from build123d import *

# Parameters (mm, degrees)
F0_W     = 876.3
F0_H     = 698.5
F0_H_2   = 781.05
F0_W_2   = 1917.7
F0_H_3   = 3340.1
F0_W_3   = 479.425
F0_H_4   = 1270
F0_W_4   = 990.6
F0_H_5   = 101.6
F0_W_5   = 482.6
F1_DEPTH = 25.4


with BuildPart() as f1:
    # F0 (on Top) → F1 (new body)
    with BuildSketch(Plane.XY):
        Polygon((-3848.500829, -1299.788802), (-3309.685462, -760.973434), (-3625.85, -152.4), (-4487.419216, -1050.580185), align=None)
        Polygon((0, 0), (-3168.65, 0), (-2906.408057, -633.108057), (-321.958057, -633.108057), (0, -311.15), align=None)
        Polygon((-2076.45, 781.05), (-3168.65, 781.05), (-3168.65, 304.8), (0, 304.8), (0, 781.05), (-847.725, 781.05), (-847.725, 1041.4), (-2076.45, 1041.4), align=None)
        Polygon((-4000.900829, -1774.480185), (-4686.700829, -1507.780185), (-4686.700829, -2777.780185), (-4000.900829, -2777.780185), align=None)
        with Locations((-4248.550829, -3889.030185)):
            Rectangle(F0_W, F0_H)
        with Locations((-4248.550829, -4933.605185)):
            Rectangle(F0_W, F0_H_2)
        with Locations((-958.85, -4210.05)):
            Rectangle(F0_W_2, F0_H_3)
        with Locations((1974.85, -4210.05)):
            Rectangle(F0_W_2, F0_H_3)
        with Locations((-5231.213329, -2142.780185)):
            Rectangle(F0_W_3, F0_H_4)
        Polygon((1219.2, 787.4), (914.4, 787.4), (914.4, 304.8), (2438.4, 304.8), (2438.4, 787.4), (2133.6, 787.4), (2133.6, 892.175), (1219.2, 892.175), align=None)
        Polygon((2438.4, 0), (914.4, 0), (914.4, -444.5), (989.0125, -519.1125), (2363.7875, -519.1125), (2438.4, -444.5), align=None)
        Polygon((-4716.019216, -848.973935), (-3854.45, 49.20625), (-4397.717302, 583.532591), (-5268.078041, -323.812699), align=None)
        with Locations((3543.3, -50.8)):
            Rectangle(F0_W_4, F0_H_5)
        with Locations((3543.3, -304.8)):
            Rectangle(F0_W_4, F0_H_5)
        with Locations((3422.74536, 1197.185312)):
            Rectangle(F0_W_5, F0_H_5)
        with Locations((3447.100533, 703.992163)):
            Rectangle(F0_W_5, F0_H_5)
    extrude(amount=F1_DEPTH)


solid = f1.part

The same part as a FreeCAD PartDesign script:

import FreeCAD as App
import Part
import Sketcher
Q = App.Units.Quantity

doc = App.newDocument("Part")
body = doc.addObject("PartDesign::Body", "Body")
body.AllowCompound = True

sketch1 = doc.addObject("Sketcher::SketchObject", "Sketch")
body.addObject(sketch1)
sketch1.AttachmentSupport = (doc.XY_Plane, [""])
sketch1.MapMode = "FlatFace"
sketch1.addGeometry(Part.LineSegment(App.Vector(-3848.500829, -1299.788802, 0), App.Vector(-3309.685462, -760.973434, 0)), False)
sketch1.addGeometry(Part.LineSegment(App.Vector(-3309.685462, -760.973434, 0), App.Vector(-3625.85, -152.4, 0)), False)
sketch1.addGeometry(Part.LineSegment(App.Vector(-3625.85, -152.4, 0), App.Vector(-4487.419216, -1050.580185, 0)), False)
sketch1.addGeometry(Part.LineSegment(App.Vector(-4487.419216, -1050.580185, 0), App.Vector(-3848.500829, -1299.788802, 0)), False)
sketch1.addGeometry(Part.LineSegment(App.Vector(0, 0, 0), App.Vector(-3168.65, 0, 0)), False)
sketch1.addGeometry(Part.LineSegment(App.Vector(-3168.65, 0, 0), App.Vector(-2906.408057, -633.108057, 0)), False)
sketch1.addGeometry(Part.LineSegment(App.Vector(-2906.408057, -633.108057, 0), App.Vector(-321.958057, -633.108057, 0)), False)
sketch1.addGeometry(Part.LineSegment(App.Vector(-321.958057, -633.108057, 0), App.Vector(0, -311.15, 0)), False)
sketch1.addGeometry(Part.LineSegment(App.Vector(0, -311.15, 0), App.Vector(0, 0, 0)), False)
sketch1.addGeometry(Part.LineSegment(App.Vector(-2076.45, 781.05, 0), App.Vector(-3168.65, 781.05, 0)), False)
sketch1.addGeometry(Part.LineSegment(App.Vector(-3168.65, 781.05, 0), App.Vector(-3168.65, 304.8, 0)), False)
sketch1.addGeometry(Part.LineSegment(App.Vector(-3168.65, 304.8, 0), App.Vector(0, 304.8, 0)), False)
sketch1.addGeometry(Part.LineSegment(App.Vector(0, 304.8, 0), App.Vector(0, 781.05, 0)), False)
sketch1.addGeometry(Part.LineSegment(App.Vector(0, 781.05, 0), App.Vector(-847.725, 781.05, 0)), False)
sketch1.addGeometry(Part.LineSegment(App.Vector(-847.725, 781.05, 0), App.Vector(-847.725, 1041.4, 0)), False)
sketch1.addGeometry(Part.LineSegment(App.Vector(-847.725, 1041.4, 0), App.Vector(-2076.45, 1041.4, 0)), False)
sketch1.addGeometry(Part.LineSegment(App.Vector(-2076.45, 1041.4, 0), App.Vector(-2076.45, 781.05, 0)), False)
sketch1.addGeometry(Part.LineSegment(App.Vector(-4000.900829, -1774.480185, 0), App.Vector(-4686.700829, -1507.780185, 0)), False)
sketch1.addGeometry(Part.LineSegment(App.Vector(-4686.700829, -1507.780185, 0), App.Vector(-4686.700829, -2777.780185, 0)), False)
sketch1.addGeometry(Part.LineSegment(App.Vector(-4686.700829, -2777.780185, 0), App.Vector(-4000.900829, -2777.780185, 0)), False)
sketch1.addGeometry(Part.LineSegment(App.Vector(-4000.900829, -2777.780185, 0), App.Vector(-4000.900829, -1774.480185, 0)), False)
sketch1.addGeometry(Part.LineSegment(App.Vector(-4686.700829, -3539.780185, 0), App.Vector(-4686.700829, -4238.280185, 0)), False)
sketch1.addGeometry(Part.LineSegment(App.Vector(-4686.700829, -4238.280185, 0), App.Vector(-3810.400829, -4238.280185, 0)), False)
sketch1.addGeometry(Part.LineSegment(App.Vector(-3810.400829, -4238.280185, 0), App.Vector(-3810.400829, -3539.780185, 0)), False)
sketch1.addGeometry(Part.LineSegment(App.Vector(-3810.400829, -3539.780185, 0), App.Vector(-4686.700829, -3539.780185, 0)), False)
sketch1.addGeometry(Part.LineSegment(App.Vector(-4686.700829, -4543.080185, 0), App.Vector(-4686.700829, -5324.130185, 0)), False)
sketch1.addGeometry(Part.LineSegment(App.Vector(-4686.700829, -5324.130185, 0), App.Vector(-3810.400829, -5324.130185, 0)), False)
sketch1.addGeometry(Part.LineSegment(App.Vector(-3810.400829, -5324.130185, 0), App.Vector(-3810.400829, -4543.080185, 0)), False)
sketch1.addGeometry(Part.LineSegment(App.Vector(-3810.400829, -4543.080185, 0), App.Vector(-4686.700829, -4543.080185, 0)), False)
sketch1.addGeometry(Part.LineSegment(App.Vector(-1917.7, -2540, 0), App.Vector(-1917.7, -5880.1, 0)), False)
sketch1.addGeometry(Part.LineSegment(App.Vector(-1917.7, -5880.1, 0), App.Vector(0, -5880.1, 0)), False)
sketch1.addGeometry(Part.LineSegment(App.Vector(0, -5880.1, 0), App.Vector(0, -2540, 0)), False)
sketch1.addGeometry(Part.LineSegment(App.Vector(0, -2540, 0), App.Vector(-1917.7, -2540, 0)), False)
sketch1.addGeometry(Part.LineSegment(App.Vector(1016, -2540, 0), App.Vector(1016, -5880.1, 0)), False)
sketch1.addGeometry(Part.LineSegment(App.Vector(1016, -5880.1, 0), App.Vector(2933.7, -5880.1, 0)), False)
sketch1.addGeometry(Part.LineSegment(App.Vector(2933.7, -5880.1, 0), App.Vector(2933.7, -2540, 0)), False)
sketch1.addGeometry(Part.LineSegment(App.Vector(2933.7, -2540, 0), App.Vector(1016, -2540, 0)), False)
sketch1.addGeometry(Part.LineSegment(App.Vector(-5470.925829, -1507.780185, 0), App.Vector(-5470.925829, -2777.780185, 0)), False)
sketch1.addGeometry(Part.LineSegment(App.Vector(-5470.925829, -2777.780185, 0), App.Vector(-4991.500829, -2777.780185, 0)), False)
sketch1.addGeometry(Part.LineSegment(App.Vector(-4991.500829, -2777.780185, 0), App.Vector(-4991.500829, -1507.780185, 0)), False)
sketch1.addGeometry(Part.LineSegment(App.Vector(-4991.500829, -1507.780185, 0), App.Vector(-5470.925829, -1507.780185, 0)), False)
sketch1.addGeometry(Part.LineSegment(App.Vector(1219.2, 787.4, 0), App.Vector(914.4, 787.4, 0)), False)
sketch1.addGeometry(Part.LineSegment(App.Vector(914.4, 787.4, 0), App.Vector(914.4, 304.8, 0)), False)
sketch1.addGeometry(Part.LineSegment(App.Vector(914.4, 304.8, 0), App.Vector(2438.4, 304.8, 0)), False)
sketch1.addGeometry(Part.LineSegment(App.Vector(2438.4, 304.8, 0), App.Vector(2438.4, 787.4, 0)), False)
sketch1.addGeometry(Part.LineSegment(App.Vector(2438.4, 787.4, 0), App.Vector(2133.6, 787.4, 0)), False)
sketch1.addGeometry(Part.LineSegment(App.Vector(2133.6, 787.4, 0), App.Vector(2133.6, 892.175, 0)), False)
sketch1.addGeometry(Part.LineSegment(App.Vector(2133.6, 892.175, 0), App.Vector(1219.2, 892.175, 0)), False)
sketch1.addGeometry(Part.LineSegment(App.Vector(1219.2, 892.175, 0), App.Vector(1219.2, 787.4, 0)), False)
sketch1.addGeometry(Part.LineSegment(App.Vector(2438.4, 0, 0), App.Vector(914.4, 0, 0)), False)
sketch1.addGeometry(Part.LineSegment(App.Vector(914.4, 0, 0), App.Vector(914.4, -444.5, 0)), False)
sketch1.addGeometry(Part.LineSegment(App.Vector(914.4, -444.5, 0), App.Vector(989.0125, -519.1125, 0)), False)
sketch1.addGeometry(Part.LineSegment(App.Vector(989.0125, -519.1125, 0), App.Vector(2363.7875, -519.1125, 0)), False)
sketch1.addGeometry(Part.LineSegment(App.Vector(2363.7875, -519.1125, 0), App.Vector(2438.4, -444.5, 0)), False)
sketch1.addGeometry(Part.LineSegment(App.Vector(2438.4, -444.5, 0), App.Vector(2438.4, 0, 0)), False)
sketch1.addGeometry(Part.LineSegment(App.Vector(-4716.019216, -848.973935, 0), App.Vector(-3854.45, 49.20625, 0)), False)
sketch1.addGeometry(Part.LineSegment(App.Vector(-3854.45, 49.20625, 0), App.Vector(-4397.717302, 583.532591, 0)), False)
sketch1.addGeometry(Part.LineSegment(App.Vector(-4397.717302, 583.532591, 0), App.Vector(-5268.078041, -323.812699, 0)), False)
sketch1.addGeometry(Part.LineSegment(App.Vector(-5268.078041, -323.812699, 0), App.Vector(-4716.019216, -848.973935, 0)), False)
sketch1.addGeometry(Part.LineSegment(App.Vector(3048, 0, 0), App.Vector(3048, -101.6, 0)), False)
sketch1.addGeometry(Part.LineSegment(App.Vector(3048, -101.6, 0), App.Vector(4038.6, -101.6, 0)), False)
sketch1.addGeometry(Part.LineSegment(App.Vector(4038.6, -101.6, 0), App.Vector(4038.6, 0, 0)), False)
sketch1.addGeometry(Part.LineSegment(App.Vector(4038.6, 0, 0), App.Vector(3048, 0, 0)), False)
sketch1.addGeometry(Part.LineSegment(App.Vector(3048, -254, 0), App.Vector(3048, -355.6, 0)), False)
sketch1.addGeometry(Part.LineSegment(App.Vector(3048, -355.6, 0), App.Vector(4038.6, -355.6, 0)), False)
sketch1.addGeometry(Part.LineSegment(App.Vector(4038.6, -355.6, 0), App.Vector(4038.6, -254, 0)), False)
sketch1.addGeometry(Part.LineSegment(App.Vector(4038.6, -254, 0), App.Vector(3048, -254, 0)), False)
sketch1.addGeometry(Part.LineSegment(App.Vector(3181.44536, 1247.985312, 0), App.Vector(3181.44536, 1146.385312, 0)), False)
sketch1.addGeometry(Part.LineSegment(App.Vector(3181.44536, 1146.385312, 0), App.Vector(3664.04536, 1146.385312, 0)), False)
sketch1.addGeometry(Part.LineSegment(App.Vector(3664.04536, 1146.385312, 0), App.Vector(3664.04536, 1247.985312, 0)), False)
sketch1.addGeometry(Part.LineSegment(App.Vector(3664.04536, 1247.985312, 0), App.Vector(3181.44536, 1247.985312, 0)), False)
sketch1.addGeometry(Part.LineSegment(App.Vector(3205.800533, 754.792163, 0), App.Vector(3205.800533, 653.192163, 0)), False)
sketch1.addGeometry(Part.LineSegment(App.Vector(3205.800533, 653.192163, 0), App.Vector(3688.400533, 653.192163, 0)), False)
sketch1.addGeometry(Part.LineSegment(App.Vector(3688.400533, 653.192163, 0), App.Vector(3688.400533, 754.792163, 0)), False)
sketch1.addGeometry(Part.LineSegment(App.Vector(3688.400533, 754.792163, 0), App.Vector(3205.800533, 754.792163, 0)), False)
sketch1.addConstraint(Sketcher.Constraint("Coincident", 0, 2, 1, 1))
sketch1.addConstraint(Sketcher.Constraint("Coincident", 1, 2, 2, 1))
sketch1.addConstraint(Sketcher.Constraint("Coincident", 2, 2, 3, 1))
sketch1.addConstraint(Sketcher.Constraint("Coincident", 3, 2, 0, 1))
sketch1.addConstraint(Sketcher.Constraint("Coincident", 4, 2, 5, 1))
sketch1.addConstraint(Sketcher.Constraint("Coincident", 5, 2, 6, 1))
sketch1.addConstraint(Sketcher.Constraint("Coincident", 6, 2, 7, 1))
sketch1.addConstraint(Sketcher.Constraint("Coincident", 7, 2, 8, 1))
sketch1.addConstraint(Sketcher.Constraint("Coincident", 8, 2, 4, 1))
sketch1.addConstraint(Sketcher.Constraint("Coincident", 9, 2, 10, 1))
sketch1.addConstraint(Sketcher.Constraint("Coincident", 10, 2, 11, 1))
sketch1.addConstraint(Sketcher.Constraint("Coincident", 11, 2, 12, 1))
sketch1.addConstraint(Sketcher.Constraint("Coincident", 12, 2, 13, 1))
sketch1.addConstraint(Sketcher.Constraint("Coincident", 13, 2, 14, 1))
sketch1.addConstraint(Sketcher.Constraint("Coincident", 14, 2, 15, 1))
sketch1.addConstraint(Sketcher.Constraint("Coincident", 15, 2, 16, 1))
sketch1.addConstraint(Sketcher.Constraint("Coincident", 16, 2, 9, 1))
sketch1.addConstraint(Sketcher.Constraint("Coincident", 17, 2, 18, 1))
sketch1.addConstraint(Sketcher.Constraint("Coincident", 18, 2, 19, 1))
sketch1.addConstraint(Sketcher.Constraint("Coincident", 19, 2, 20, 1))
sketch1.addConstraint(Sketcher.Constraint("Coincident", 20, 2, 17, 1))
sketch1.addConstraint(Sketcher.Constraint("Coincident", 21, 2, 22, 1))
sketch1.addConstraint(Sketcher.Constraint("Coincident", 22, 2, 23, 1))
sketch1.addConstraint(Sketcher.Constraint("Coincident", 23, 2, 24, 1))
sketch1.addConstraint(Sketcher.Constraint("Coincident", 24, 2, 21, 1))
sketch1.addConstraint(Sketcher.Constraint("Coincident", 25, 2, 26, 1))
sketch1.addConstraint(Sketcher.Constraint("Coincident", 26, 2, 27, 1))
sketch1.addConstraint(Sketcher.Constraint("Coincident", 27, 2, 28, 1))
sketch1.addConstraint(Sketcher.Constraint("Coincident", 28, 2, 25, 1))
sketch1.addConstraint(Sketcher.Constraint("Coincident", 29, 2, 30, 1))
sketch1.addConstraint(Sketcher.Constraint("Coincident", 30, 2, 31, 1))
sketch1.addConstraint(Sketcher.Constraint("Coincident", 31, 2, 32, 1))
sketch1.addConstraint(Sketcher.Constraint("Coincident", 32, 2, 29, 1))
sketch1.addConstraint(Sketcher.Constraint("Coincident", 33, 2, 34, 1))
sketch1.addConstraint(Sketcher.Constraint("Coincident", 34, 2, 35, 1))
sketch1.addConstraint(Sketcher.Constraint("Coincident", 35, 2, 36, 1))
sketch1.addConstraint(Sketcher.Constraint("Coincident", 36, 2, 33, 1))
sketch1.addConstraint(Sketcher.Constraint("Coincident", 37, 2, 38, 1))
sketch1.addConstraint(Sketcher.Constraint("Coincident", 38, 2, 39, 1))
sketch1.addConstraint(Sketcher.Constraint("Coincident", 39, 2, 40, 1))
sketch1.addConstraint(Sketcher.Constraint("Coincident", 40, 2, 37, 1))
sketch1.addConstraint(Sketcher.Constraint("Coincident", 41, 2, 42, 1))
sketch1.addConstraint(Sketcher.Constraint("Coincident", 42, 2, 43, 1))
sketch1.addConstraint(Sketcher.Constraint("Coincident", 43, 2, 44, 1))
sketch1.addConstraint(Sketcher.Constraint("Coincident", 44, 2, 45, 1))
sketch1.addConstraint(Sketcher.Constraint("Coincident", 45, 2, 46, 1))
sketch1.addConstraint(Sketcher.Constraint("Coincident", 46, 2, 47, 1))
sketch1.addConstraint(Sketcher.Constraint("Coincident", 47, 2, 48, 1))
sketch1.addConstraint(Sketcher.Constraint("Coincident", 48, 2, 41, 1))
sketch1.addConstraint(Sketcher.Constraint("Coincident", 49, 2, 50, 1))
sketch1.addConstraint(Sketcher.Constraint("Coincident", 50, 2, 51, 1))
sketch1.addConstraint(Sketcher.Constraint("Coincident", 51, 2, 52, 1))
sketch1.addConstraint(Sketcher.Constraint("Coincident", 52, 2, 53, 1))
sketch1.addConstraint(Sketcher.Constraint("Coincident", 53, 2, 54, 1))
sketch1.addConstraint(Sketcher.Constraint("Coincident", 54, 2, 49, 1))
sketch1.addConstraint(Sketcher.Constraint("Coincident", 55, 2, 56, 1))
sketch1.addConstraint(Sketcher.Constraint("Coincident", 56, 2, 57, 1))
sketch1.addConstraint(Sketcher.Constraint("Coincident", 57, 2, 58, 1))
sketch1.addConstraint(Sketcher.Constraint("Coincident", 58, 2, 55, 1))
sketch1.addConstraint(Sketcher.Constraint("Coincident", 59, 2, 60, 1))
sketch1.addConstraint(Sketcher.Constraint("Coincident", 60, 2, 61, 1))
sketch1.addConstraint(Sketcher.Constraint("Coincident", 61, 2, 62, 1))
sketch1.addConstraint(Sketcher.Constraint("Coincident", 62, 2, 59, 1))
sketch1.addConstraint(Sketcher.Constraint("Coincident", 63, 2, 64, 1))
sketch1.addConstraint(Sketcher.Constraint("Coincident", 64, 2, 65, 1))
sketch1.addConstraint(Sketcher.Constraint("Coincident", 65, 2, 66, 1))
sketch1.addConstraint(Sketcher.Constraint("Coincident", 66, 2, 63, 1))
sketch1.addConstraint(Sketcher.Constraint("Coincident", 67, 2, 68, 1))
sketch1.addConstraint(Sketcher.Constraint("Coincident", 68, 2, 69, 1))
sketch1.addConstraint(Sketcher.Constraint("Coincident", 69, 2, 70, 1))
sketch1.addConstraint(Sketcher.Constraint("Coincident", 70, 2, 67, 1))
sketch1.addConstraint(Sketcher.Constraint("Coincident", 71, 2, 72, 1))
sketch1.addConstraint(Sketcher.Constraint("Coincident", 72, 2, 73, 1))
sketch1.addConstraint(Sketcher.Constraint("Coincident", 73, 2, 74, 1))
sketch1.addConstraint(Sketcher.Constraint("Coincident", 74, 2, 71, 1))
sketch1.addConstraint(Sketcher.Constraint("Horizontal", 4))
sketch1.addConstraint(Sketcher.Constraint("Horizontal", 6))
sketch1.addConstraint(Sketcher.Constraint("Vertical", 8))
sketch1.addConstraint(Sketcher.Constraint("Horizontal", 9))
sketch1.addConstraint(Sketcher.Constraint("Vertical", 10))
sketch1.addConstraint(Sketcher.Constraint("Horizontal", 11))
sketch1.addConstraint(Sketcher.Constraint("Vertical", 12))
sketch1.addConstraint(Sketcher.Constraint("Horizontal", 13))
sketch1.addConstraint(Sketcher.Constraint("Vertical", 14))
sketch1.addConstraint(Sketcher.Constraint("Horizontal", 15))
sketch1.addConstraint(Sketcher.Constraint("Vertical", 16))
sketch1.addConstraint(Sketcher.Constraint("Vertical", 18))
sketch1.addConstraint(Sketcher.Constraint("Horizontal", 19))
sketch1.addConstraint(Sketcher.Constraint("Vertical", 20))
sketch1.addConstraint(Sketcher.Constraint("Vertical", 21))
sketch1.addConstraint(Sketcher.Constraint("Horizontal", 22))
sketch1.addConstraint(Sketcher.Constraint("Vertical", 23))
sketch1.addConstraint(Sketcher.Constraint("Horizontal", 24))
sketch1.addConstraint(Sketcher.Constraint("Vertical", 25))
sketch1.addConstraint(Sketcher.Constraint("Horizontal", 26))
sketch1.addConstraint(Sketcher.Constraint("Vertical", 27))
sketch1.addConstraint(Sketcher.Constraint("Horizontal", 28))
sketch1.addConstraint(Sketcher.Constraint("Vertical", 29))
sketch1.addConstraint(Sketcher.Constraint("Horizontal", 30))
sketch1.addConstraint(Sketcher.Constraint("Vertical", 31))
sketch1.addConstraint(Sketcher.Constraint("Horizontal", 32))
sketch1.addConstraint(Sketcher.Constraint("Vertical", 33))
sketch1.addConstraint(Sketcher.Constraint("Horizontal", 34))
sketch1.addConstraint(Sketcher.Constraint("Vertical", 35))
sketch1.addConstraint(Sketcher.Constraint("Horizontal", 36))
sketch1.addConstraint(Sketcher.Constraint("Vertical", 37))
sketch1.addConstraint(Sketcher.Constraint("Horizontal", 38))
sketch1.addConstraint(Sketcher.Constraint("Vertical", 39))
sketch1.addConstraint(Sketcher.Constraint("Horizontal", 40))
sketch1.addConstraint(Sketcher.Constraint("Horizontal", 41))
sketch1.addConstraint(Sketcher.Constraint("Vertical", 42))
sketch1.addConstraint(Sketcher.Constraint("Horizontal", 43))
sketch1.addConstraint(Sketcher.Constraint("Vertical", 44))
sketch1.addConstraint(Sketcher.Constraint("Horizontal", 45))
sketch1.addConstraint(Sketcher.Constraint("Vertical", 46))
sketch1.addConstraint(Sketcher.Constraint("Horizontal", 47))
sketch1.addConstraint(Sketcher.Constraint("Vertical", 48))
sketch1.addConstraint(Sketcher.Constraint("Horizontal", 49))
sketch1.addConstraint(Sketcher.Constraint("Vertical", 50))
sketch1.addConstraint(Sketcher.Constraint("Horizontal", 52))
sketch1.addConstraint(Sketcher.Constraint("Vertical", 54))
sketch1.addConstraint(Sketcher.Constraint("Vertical", 59))
sketch1.addConstraint(Sketcher.Constraint("Horizontal", 60))
sketch1.addConstraint(Sketcher.Constraint("Vertical", 61))
sketch1.addConstraint(Sketcher.Constraint("Horizontal", 62))
sketch1.addConstraint(Sketcher.Constraint("Vertical", 63))
sketch1.addConstraint(Sketcher.Constraint("Horizontal", 64))
sketch1.addConstraint(Sketcher.Constraint("Vertical", 65))
sketch1.addConstraint(Sketcher.Constraint("Horizontal", 66))
sketch1.addConstraint(Sketcher.Constraint("Vertical", 67))
sketch1.addConstraint(Sketcher.Constraint("Horizontal", 68))
sketch1.addConstraint(Sketcher.Constraint("Vertical", 69))
sketch1.addConstraint(Sketcher.Constraint("Horizontal", 70))
sketch1.addConstraint(Sketcher.Constraint("Vertical", 71))
sketch1.addConstraint(Sketcher.Constraint("Horizontal", 72))
sketch1.addConstraint(Sketcher.Constraint("Vertical", 73))
sketch1.addConstraint(Sketcher.Constraint("Horizontal", 74))
sketch1.addConstraint(Sketcher.Constraint("Coincident", 8, 2, -1, 1))
sketch1.addConstraint(Sketcher.Constraint("PointOnObject", 11, 2, -2))
sketch1.addConstraint(Sketcher.Constraint("PointOnObject", 30, 2, -2))
sketch1.addConstraint(Sketcher.Constraint("PointOnObject", 49, 2, -1))
sketch1.addConstraint(Sketcher.Constraint("PointOnObject", 61, 2, -1))
sketch1.addConstraint(Sketcher.Constraint("Parallel", 0, 7))
sketch1.addConstraint(Sketcher.Constraint("Perpendicular", 7, 51))
sketch1.addConstraint(Sketcher.Constraint("Perpendicular", 51, 53))
sketch1.addConstraint(Sketcher.Constraint("Parallel", 2, 55))
sketch1.addConstraint(Sketcher.Constraint("Parallel", 55, 57))
sketch1.addConstraint(Sketcher.Constraint("Horizontal", 9, 2, 12, 2))
sketch1.addConstraint(Sketcher.Constraint("Horizontal", 30, 2, 33, 2))
sketch1.addConstraint(Sketcher.Constraint("Horizontal", 32, 2, 35, 2))
sketch1.addConstraint(Sketcher.Constraint("Horizontal", 19, 2, 37, 2))
sketch1.addConstraint(Sketcher.Constraint("Horizontal", 17, 2, 39, 2))
sketch1.addConstraint(Sketcher.Constraint("Horizontal", 11, 2, 42, 2))
sketch1.addConstraint(Sketcher.Constraint("Horizontal", 41, 2, 44, 2))
sketch1.addConstraint(Sketcher.Constraint("Horizontal", 50, 2, 53, 2))
sketch1.addConstraint(Sketcher.Constraint("Vertical", 4, 2, 9, 2))
sketch1.addConstraint(Sketcher.Constraint("Vertical", 18, 2, 21, 2))
sketch1.addConstraint(Sketcher.Constraint("Vertical", 24, 2, 25, 2))
sketch1.addConstraint(Sketcher.Constraint("Vertical", 23, 2, 26, 2))
sketch1.addConstraint(Sketcher.Constraint("Vertical", 42, 2, 49, 2))
sketch1.addConstraint(Sketcher.Constraint("Vertical", 44, 2, 53, 2))
sketch1.addConstraint(Sketcher.Constraint("Vertical", 62, 2, 63, 2))
sketch1.addConstraint(Sketcher.Constraint("Vertical", 61, 2, 64, 2))
sketch1.addConstraint(Sketcher.Constraint("Equal", 32, 34))
sketch1.addConstraint(Sketcher.Constraint("Equal", 41, 45))
sketch1.addConstraint(Sketcher.Constraint("Equal", 70, 72))
sketch1.addConstraint(Sketcher.Constraint("Equal", 74, 42))
sketch1.addConstraint(Sketcher.Constraint("Equal", 61, 63))
sketch1.addConstraint(Sketcher.Constraint("Equal", 65, 67))
sketch1.addConstraint(Sketcher.Constraint("Equal", 69, 71))
sketch1.addConstraint(Sketcher.Constraint("Equal", 1, 3))
sketch1.addConstraint(Sketcher.Constraint("Equal", 51, 53))
sketch1.addConstraint(Sketcher.Constraint("Equal", 2, 55))
sketch1.addConstraint(Sketcher.Constraint("Equal", 0, 56))
sketch1.addConstraint(Sketcher.Constraint("DistanceX", 9, 2, 9, 1, Q("43 in")))
sketch1.addConstraint(Sketcher.Constraint("DistanceX", 19, 1, 19, 2, Q("27 in")))
sketch1.addConstraint(Sketcher.Constraint("DistanceX", 41, 2, 41, 1, Q("12 in")))
sketch1.addConstraint(Sketcher.Constraint("DistanceX", 43, 1, 43, 2, Q("60 in")))
sketch1.addConstraint(Sketcher.Constraint("DistanceX", 60, 1, 60, 2, Q("39 in")))
sketch1.addConstraint(Sketcher.Constraint("DistanceX", 68, 1, 68, 2, Q("19 in")))
sketch1.addConstraint(Sketcher.Constraint("DistanceY", 18, 2, 18, 1, Q("50 in")))
sketch1.addConstraint(Sketcher.Constraint("DistanceY", 59, 2, 59, 1, Q("4 in")))
sketch1.addConstraint(Sketcher.Constraint("Distance", 0, Q("30 in")))
sketch1.addConstraint(Sketcher.Constraint("Distance", 1, Q("27 in")))
sketch1.addConstraint(Sketcher.Constraint("Distance", 2, Q("49 in")))
sketch1.addConstraint(Sketcher.Constraint("DistanceX", 22, 1, 22, 2, Q("34.5 in")))
sketch1.addConstraint(Sketcher.Constraint("DistanceX", 30, 1, 30, 2, Q("75.5 in")))
sketch1.addConstraint(Sketcher.Constraint("DistanceY", 20, 1, 20, 2, Q("39.5 in")))
sketch1.addConstraint(Sketcher.Constraint("DistanceY", 21, 2, 21, 1, Q("27.5 in")))
sketch1.addConstraint(Sketcher.Constraint("DistanceY", 29, 2, 29, 1, Q("131.5 in")))
sketch1.addConstraint(Sketcher.Constraint("DistanceY", 50, 2, 50, 1, Q("17.5 in")))
sketch1.addConstraint(Sketcher.Constraint("DistanceY", 1, 2, -1, 1, Q("6 in")))
sketch1.addConstraint(Sketcher.Constraint("DistanceY", -1, 1, 10, 2, Q("12 in")))
sketch1.addConstraint(Sketcher.Constraint("DistanceY", -1, 1, 14, 2, Q("41 in")))
sketch1.addConstraint(Sketcher.Constraint("DistanceY", 31, 2, -1, 1, Q("100 in")))
sketch1.addConstraint(Sketcher.Constraint("DistanceX", -1, 1, 33, 2, Q("40 in")))
sketch1.addConstraint(Sketcher.Constraint("DistanceX", -1, 1, 41, 2, Q("36 in")))
sketch1.addConstraint(Sketcher.Constraint("DistanceX", -1, 1, 59, 2, Q("120 in")))
sketch1.addConstraint(Sketcher.Constraint("DistanceY", 63, 2, -1, 1, Q("14 in")))
sketch1.addConstraint(Sketcher.Constraint("Distance", 57, Q("49.5 in")))
sketch1.addConstraint(Sketcher.Constraint("DistanceX", 4, 2, 4, 1, Q("124.75 in")))
sketch1.addConstraint(Sketcher.Constraint("DistanceX", 6, 1, 6, 2, Q("101.75 in")))
sketch1.addConstraint(Sketcher.Constraint("DistanceY", 8, 1, 8, 2, Q("12.25 in")))
sketch1.addConstraint(Sketcher.Constraint("DistanceY", 10, 2, 10, 1, Q("18.75 in")))
sketch1.addConstraint(Sketcher.Constraint("DistanceY", 25, 2, 25, 1, Q("30.75 in")))
sketch1.addConstraint(Sketcher.Constraint("Angle", 5, Q("-67.5 deg")))
sketch1.addConstraint(Sketcher.Constraint("DistanceX", 13, 2, 13, 1, Q("33.375 in")))
sketch1.addConstraint(Sketcher.Constraint("DistanceX", 38, 1, 38, 2, Q("18.875 in")))
sketch1.addConstraint(Sketcher.Constraint("DistanceX", 52, 1, 52, 2, Q("54.125 in")))
sketch1.addConstraint(Sketcher.Constraint("DistanceY", 46, 1, 46, 2, Q("4.125 in")))
sketch1.addConstraint(Sketcher.Constraint("DistanceX", 1, 2, -1, 1, Q("142.75 in")))
sketch1.addConstraint(Sketcher.Constraint("DistanceX", 55, 2, -1, 1, Q("151.75 in")))
sketch1.addConstraint(Sketcher.Constraint("DistanceY", 3, 2, -1, 1, Q("1299.788802 mm")))
sketch1.addConstraint(Sketcher.Constraint("DistanceX", 56, 2, -1, 1, Q("4397.717302 mm")))
sketch1.addConstraint(Sketcher.Constraint("DistanceY", 57, 2, -1, 1, Q("323.812699 mm")))
sketch1.addConstraint(Sketcher.Constraint("DistanceX", 17, 2, -1, 1, Q("4686.700829 mm")))
sketch1.addConstraint(Sketcher.Constraint("DistanceX", 37, 2, -1, 1, Q("5470.925829 mm")))
sketch1.addConstraint(Sketcher.Constraint("DistanceX", -1, 1, 67, 2, Q("3181.44536 mm")))
sketch1.addConstraint(Sketcher.Constraint("DistanceY", -1, 1, 69, 2, Q("1247.985312 mm")))
sketch1.addConstraint(Sketcher.Constraint("DistanceY", 17, 2, -1, 1, Q("1507.780185 mm")))
sketch1.addConstraint(Sketcher.Constraint("DistanceY", 21, 2, -1, 1, Q("4238.280185 mm")))
sketch1.addConstraint(Sketcher.Constraint("DistanceY", 25, 2, -1, 1, Q("5324.130185 mm")))
sketch1.addConstraint(Sketcher.Constraint("DistanceX", -1, 1, 71, 2, Q("3205.800533 mm")))
sketch1.addConstraint(Sketcher.Constraint("DistanceY", -1, 1, 71, 2, Q("653.192163 mm")))
pad1 = doc.addObject("PartDesign::Pad", "Pad")
body.addObject(pad1)
pad1.Profile = sketch1
pad1.Length = Q("1 in")

doc.recompute()
